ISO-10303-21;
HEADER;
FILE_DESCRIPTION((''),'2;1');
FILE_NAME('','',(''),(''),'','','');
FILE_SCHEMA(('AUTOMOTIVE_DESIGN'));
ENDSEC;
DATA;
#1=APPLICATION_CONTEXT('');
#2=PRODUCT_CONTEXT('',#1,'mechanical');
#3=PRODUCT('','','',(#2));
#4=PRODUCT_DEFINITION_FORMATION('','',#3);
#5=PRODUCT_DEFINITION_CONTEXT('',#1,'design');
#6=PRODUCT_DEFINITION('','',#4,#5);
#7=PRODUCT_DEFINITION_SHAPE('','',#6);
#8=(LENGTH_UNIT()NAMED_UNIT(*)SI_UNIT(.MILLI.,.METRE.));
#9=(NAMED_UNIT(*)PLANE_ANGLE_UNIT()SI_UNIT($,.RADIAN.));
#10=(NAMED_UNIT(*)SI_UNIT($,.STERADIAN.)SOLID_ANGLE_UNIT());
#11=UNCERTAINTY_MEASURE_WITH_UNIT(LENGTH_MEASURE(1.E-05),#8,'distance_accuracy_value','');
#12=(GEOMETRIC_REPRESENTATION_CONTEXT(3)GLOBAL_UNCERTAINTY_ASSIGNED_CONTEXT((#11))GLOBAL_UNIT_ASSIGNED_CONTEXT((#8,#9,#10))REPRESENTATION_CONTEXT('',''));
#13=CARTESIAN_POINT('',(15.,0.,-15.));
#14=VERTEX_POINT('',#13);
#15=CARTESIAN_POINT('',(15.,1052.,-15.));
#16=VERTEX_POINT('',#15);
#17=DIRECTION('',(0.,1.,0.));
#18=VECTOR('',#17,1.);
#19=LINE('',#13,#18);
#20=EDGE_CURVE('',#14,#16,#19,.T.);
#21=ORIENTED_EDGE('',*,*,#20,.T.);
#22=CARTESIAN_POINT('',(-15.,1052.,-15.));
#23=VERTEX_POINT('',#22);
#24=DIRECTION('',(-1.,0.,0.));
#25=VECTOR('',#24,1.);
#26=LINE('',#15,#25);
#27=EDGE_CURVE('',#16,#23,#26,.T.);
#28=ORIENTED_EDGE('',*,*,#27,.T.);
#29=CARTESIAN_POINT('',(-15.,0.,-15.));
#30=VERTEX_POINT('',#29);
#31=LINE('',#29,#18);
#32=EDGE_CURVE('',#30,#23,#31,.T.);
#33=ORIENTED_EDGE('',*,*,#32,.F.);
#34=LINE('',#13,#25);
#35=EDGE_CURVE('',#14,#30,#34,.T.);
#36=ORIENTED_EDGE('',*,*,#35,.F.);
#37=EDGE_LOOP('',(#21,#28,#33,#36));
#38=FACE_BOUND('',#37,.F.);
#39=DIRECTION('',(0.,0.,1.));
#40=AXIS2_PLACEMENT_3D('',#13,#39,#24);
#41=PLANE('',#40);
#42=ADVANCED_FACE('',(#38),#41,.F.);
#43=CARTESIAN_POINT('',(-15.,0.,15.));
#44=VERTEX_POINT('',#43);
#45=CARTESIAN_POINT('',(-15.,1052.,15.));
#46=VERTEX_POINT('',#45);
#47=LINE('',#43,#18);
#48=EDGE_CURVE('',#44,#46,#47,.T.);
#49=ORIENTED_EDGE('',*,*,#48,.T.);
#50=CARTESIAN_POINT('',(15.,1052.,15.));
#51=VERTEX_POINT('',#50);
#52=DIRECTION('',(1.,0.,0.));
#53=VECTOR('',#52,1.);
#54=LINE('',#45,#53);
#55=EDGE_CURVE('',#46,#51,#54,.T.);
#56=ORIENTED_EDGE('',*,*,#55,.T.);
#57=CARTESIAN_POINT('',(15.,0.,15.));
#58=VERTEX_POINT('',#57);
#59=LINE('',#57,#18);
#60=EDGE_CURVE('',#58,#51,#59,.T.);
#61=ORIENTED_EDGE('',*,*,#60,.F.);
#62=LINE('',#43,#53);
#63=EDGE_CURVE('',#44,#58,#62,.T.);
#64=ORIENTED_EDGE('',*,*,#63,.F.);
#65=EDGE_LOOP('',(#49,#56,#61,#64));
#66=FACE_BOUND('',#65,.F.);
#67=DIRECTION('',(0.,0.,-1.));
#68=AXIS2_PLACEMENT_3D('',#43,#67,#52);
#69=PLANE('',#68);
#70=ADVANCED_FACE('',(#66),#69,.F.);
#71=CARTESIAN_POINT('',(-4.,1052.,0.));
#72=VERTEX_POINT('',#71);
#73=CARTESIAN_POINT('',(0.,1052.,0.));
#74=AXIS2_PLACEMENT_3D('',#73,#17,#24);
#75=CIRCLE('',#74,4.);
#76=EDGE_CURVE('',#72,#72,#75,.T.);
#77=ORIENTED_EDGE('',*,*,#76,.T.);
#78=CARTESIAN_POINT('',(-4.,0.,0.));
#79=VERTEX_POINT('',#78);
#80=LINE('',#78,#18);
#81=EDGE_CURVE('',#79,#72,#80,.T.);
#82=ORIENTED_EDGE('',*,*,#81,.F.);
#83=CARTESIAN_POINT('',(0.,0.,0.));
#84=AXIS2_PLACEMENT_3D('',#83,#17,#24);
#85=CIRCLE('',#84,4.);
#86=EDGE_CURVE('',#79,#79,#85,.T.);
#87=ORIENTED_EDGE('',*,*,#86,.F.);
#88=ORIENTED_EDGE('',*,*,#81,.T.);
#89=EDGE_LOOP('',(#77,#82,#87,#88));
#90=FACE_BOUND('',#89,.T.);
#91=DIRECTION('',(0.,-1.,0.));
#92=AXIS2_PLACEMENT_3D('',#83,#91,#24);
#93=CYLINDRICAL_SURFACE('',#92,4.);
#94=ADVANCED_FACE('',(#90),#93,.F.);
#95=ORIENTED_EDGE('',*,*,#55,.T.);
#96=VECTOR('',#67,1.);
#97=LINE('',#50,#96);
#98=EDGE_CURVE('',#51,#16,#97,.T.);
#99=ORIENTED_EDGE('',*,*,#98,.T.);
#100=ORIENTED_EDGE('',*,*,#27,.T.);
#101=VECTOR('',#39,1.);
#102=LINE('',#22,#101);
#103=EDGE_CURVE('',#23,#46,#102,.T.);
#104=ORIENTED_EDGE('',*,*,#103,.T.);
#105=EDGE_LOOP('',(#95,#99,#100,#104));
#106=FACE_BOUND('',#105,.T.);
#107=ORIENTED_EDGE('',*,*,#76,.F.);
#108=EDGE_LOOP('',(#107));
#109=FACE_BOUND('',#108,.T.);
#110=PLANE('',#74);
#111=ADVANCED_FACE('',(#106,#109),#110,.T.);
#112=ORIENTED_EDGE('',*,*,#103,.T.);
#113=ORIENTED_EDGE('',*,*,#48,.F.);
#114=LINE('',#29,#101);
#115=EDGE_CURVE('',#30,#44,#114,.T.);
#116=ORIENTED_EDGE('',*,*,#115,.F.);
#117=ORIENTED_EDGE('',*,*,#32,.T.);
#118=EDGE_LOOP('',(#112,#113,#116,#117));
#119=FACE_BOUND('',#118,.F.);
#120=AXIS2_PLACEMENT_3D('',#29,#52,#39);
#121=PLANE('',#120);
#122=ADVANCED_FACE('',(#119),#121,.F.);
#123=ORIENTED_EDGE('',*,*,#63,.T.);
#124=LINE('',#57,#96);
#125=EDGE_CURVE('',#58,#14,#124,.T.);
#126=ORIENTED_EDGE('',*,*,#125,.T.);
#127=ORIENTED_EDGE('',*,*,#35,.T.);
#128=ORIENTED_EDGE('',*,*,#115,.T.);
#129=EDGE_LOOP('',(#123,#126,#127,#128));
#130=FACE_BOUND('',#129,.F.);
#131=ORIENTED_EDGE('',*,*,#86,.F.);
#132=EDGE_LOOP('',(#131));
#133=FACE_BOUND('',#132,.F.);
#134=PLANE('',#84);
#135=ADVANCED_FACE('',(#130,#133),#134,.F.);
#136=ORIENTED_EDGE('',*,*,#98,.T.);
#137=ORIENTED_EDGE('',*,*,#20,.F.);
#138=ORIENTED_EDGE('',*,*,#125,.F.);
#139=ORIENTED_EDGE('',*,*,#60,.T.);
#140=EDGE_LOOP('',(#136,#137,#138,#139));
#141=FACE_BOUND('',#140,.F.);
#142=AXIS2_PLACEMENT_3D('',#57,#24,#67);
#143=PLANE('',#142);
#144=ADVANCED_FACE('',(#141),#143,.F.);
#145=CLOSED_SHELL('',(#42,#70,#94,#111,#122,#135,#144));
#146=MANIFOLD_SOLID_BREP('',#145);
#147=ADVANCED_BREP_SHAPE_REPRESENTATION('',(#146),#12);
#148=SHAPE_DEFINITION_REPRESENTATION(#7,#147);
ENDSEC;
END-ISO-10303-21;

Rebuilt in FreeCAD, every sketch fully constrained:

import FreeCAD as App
import Part
import Sketcher
from FreeCAD import Vector


def add_polygon(sketch, points):
    """Adds a closed chain of lines whose ends are joined by coincident constraints."""
    first, n = sketch.GeometryCount, len(points)
    for a, b in zip(points, points[1:] + points[:1]):
        sketch.addGeometry(Part.LineSegment(App.Vector(*a, 0), App.Vector(*b, 0)), False)
    for i in range(n):
        sketch.addConstraint(Sketcher.Constraint("Coincident", first + i, 2, first + (i + 1) % n, 1))

doc = App.newDocument("Part")
body = doc.addObject("PartDesign::Body", "Body")

# Sketch on XZ plane
sketch1 = body.newObject("Sketcher::SketchObject", "Sketch")
sketch1.AttachmentSupport = (doc.getObject("XZ_Plane"), [""])
sketch1.MapMode = "FlatFace"
add_polygon(sketch1, [(-15, -15), (-15, 15), (15, 15), (15, -15)])  # lines 0-3
sketch1.addGeometry(Part.Circle(Vector(0, 0, 0), Vector(0, 0, 1), 4), False)  # 4
sketch1.addConstraint([
    Sketcher.Constraint("Vertical", 0),
    Sketcher.Constraint("Horizontal", 1),
    Sketcher.Constraint("Vertical", 2),
    Sketcher.Constraint("Horizontal", 3),
    Sketcher.Constraint("Coincident", 4, 3, -1, 1),
    Sketcher.Constraint("Symmetric", 0, 2, 2, 2, -1, 1),
    Sketcher.Constraint("Equal", 3, 0),
    Sketcher.Constraint("Diameter", 4, 8.0),
    Sketcher.Constraint("DistanceX", 1, 1, 1, 2, 30.0),
])
pad1 = body.newObject("PartDesign::Pad", "Pad")
pad1.Profile = sketch1
pad1.Length = 1052
pad1.Reversed = True

doc.recompute()
